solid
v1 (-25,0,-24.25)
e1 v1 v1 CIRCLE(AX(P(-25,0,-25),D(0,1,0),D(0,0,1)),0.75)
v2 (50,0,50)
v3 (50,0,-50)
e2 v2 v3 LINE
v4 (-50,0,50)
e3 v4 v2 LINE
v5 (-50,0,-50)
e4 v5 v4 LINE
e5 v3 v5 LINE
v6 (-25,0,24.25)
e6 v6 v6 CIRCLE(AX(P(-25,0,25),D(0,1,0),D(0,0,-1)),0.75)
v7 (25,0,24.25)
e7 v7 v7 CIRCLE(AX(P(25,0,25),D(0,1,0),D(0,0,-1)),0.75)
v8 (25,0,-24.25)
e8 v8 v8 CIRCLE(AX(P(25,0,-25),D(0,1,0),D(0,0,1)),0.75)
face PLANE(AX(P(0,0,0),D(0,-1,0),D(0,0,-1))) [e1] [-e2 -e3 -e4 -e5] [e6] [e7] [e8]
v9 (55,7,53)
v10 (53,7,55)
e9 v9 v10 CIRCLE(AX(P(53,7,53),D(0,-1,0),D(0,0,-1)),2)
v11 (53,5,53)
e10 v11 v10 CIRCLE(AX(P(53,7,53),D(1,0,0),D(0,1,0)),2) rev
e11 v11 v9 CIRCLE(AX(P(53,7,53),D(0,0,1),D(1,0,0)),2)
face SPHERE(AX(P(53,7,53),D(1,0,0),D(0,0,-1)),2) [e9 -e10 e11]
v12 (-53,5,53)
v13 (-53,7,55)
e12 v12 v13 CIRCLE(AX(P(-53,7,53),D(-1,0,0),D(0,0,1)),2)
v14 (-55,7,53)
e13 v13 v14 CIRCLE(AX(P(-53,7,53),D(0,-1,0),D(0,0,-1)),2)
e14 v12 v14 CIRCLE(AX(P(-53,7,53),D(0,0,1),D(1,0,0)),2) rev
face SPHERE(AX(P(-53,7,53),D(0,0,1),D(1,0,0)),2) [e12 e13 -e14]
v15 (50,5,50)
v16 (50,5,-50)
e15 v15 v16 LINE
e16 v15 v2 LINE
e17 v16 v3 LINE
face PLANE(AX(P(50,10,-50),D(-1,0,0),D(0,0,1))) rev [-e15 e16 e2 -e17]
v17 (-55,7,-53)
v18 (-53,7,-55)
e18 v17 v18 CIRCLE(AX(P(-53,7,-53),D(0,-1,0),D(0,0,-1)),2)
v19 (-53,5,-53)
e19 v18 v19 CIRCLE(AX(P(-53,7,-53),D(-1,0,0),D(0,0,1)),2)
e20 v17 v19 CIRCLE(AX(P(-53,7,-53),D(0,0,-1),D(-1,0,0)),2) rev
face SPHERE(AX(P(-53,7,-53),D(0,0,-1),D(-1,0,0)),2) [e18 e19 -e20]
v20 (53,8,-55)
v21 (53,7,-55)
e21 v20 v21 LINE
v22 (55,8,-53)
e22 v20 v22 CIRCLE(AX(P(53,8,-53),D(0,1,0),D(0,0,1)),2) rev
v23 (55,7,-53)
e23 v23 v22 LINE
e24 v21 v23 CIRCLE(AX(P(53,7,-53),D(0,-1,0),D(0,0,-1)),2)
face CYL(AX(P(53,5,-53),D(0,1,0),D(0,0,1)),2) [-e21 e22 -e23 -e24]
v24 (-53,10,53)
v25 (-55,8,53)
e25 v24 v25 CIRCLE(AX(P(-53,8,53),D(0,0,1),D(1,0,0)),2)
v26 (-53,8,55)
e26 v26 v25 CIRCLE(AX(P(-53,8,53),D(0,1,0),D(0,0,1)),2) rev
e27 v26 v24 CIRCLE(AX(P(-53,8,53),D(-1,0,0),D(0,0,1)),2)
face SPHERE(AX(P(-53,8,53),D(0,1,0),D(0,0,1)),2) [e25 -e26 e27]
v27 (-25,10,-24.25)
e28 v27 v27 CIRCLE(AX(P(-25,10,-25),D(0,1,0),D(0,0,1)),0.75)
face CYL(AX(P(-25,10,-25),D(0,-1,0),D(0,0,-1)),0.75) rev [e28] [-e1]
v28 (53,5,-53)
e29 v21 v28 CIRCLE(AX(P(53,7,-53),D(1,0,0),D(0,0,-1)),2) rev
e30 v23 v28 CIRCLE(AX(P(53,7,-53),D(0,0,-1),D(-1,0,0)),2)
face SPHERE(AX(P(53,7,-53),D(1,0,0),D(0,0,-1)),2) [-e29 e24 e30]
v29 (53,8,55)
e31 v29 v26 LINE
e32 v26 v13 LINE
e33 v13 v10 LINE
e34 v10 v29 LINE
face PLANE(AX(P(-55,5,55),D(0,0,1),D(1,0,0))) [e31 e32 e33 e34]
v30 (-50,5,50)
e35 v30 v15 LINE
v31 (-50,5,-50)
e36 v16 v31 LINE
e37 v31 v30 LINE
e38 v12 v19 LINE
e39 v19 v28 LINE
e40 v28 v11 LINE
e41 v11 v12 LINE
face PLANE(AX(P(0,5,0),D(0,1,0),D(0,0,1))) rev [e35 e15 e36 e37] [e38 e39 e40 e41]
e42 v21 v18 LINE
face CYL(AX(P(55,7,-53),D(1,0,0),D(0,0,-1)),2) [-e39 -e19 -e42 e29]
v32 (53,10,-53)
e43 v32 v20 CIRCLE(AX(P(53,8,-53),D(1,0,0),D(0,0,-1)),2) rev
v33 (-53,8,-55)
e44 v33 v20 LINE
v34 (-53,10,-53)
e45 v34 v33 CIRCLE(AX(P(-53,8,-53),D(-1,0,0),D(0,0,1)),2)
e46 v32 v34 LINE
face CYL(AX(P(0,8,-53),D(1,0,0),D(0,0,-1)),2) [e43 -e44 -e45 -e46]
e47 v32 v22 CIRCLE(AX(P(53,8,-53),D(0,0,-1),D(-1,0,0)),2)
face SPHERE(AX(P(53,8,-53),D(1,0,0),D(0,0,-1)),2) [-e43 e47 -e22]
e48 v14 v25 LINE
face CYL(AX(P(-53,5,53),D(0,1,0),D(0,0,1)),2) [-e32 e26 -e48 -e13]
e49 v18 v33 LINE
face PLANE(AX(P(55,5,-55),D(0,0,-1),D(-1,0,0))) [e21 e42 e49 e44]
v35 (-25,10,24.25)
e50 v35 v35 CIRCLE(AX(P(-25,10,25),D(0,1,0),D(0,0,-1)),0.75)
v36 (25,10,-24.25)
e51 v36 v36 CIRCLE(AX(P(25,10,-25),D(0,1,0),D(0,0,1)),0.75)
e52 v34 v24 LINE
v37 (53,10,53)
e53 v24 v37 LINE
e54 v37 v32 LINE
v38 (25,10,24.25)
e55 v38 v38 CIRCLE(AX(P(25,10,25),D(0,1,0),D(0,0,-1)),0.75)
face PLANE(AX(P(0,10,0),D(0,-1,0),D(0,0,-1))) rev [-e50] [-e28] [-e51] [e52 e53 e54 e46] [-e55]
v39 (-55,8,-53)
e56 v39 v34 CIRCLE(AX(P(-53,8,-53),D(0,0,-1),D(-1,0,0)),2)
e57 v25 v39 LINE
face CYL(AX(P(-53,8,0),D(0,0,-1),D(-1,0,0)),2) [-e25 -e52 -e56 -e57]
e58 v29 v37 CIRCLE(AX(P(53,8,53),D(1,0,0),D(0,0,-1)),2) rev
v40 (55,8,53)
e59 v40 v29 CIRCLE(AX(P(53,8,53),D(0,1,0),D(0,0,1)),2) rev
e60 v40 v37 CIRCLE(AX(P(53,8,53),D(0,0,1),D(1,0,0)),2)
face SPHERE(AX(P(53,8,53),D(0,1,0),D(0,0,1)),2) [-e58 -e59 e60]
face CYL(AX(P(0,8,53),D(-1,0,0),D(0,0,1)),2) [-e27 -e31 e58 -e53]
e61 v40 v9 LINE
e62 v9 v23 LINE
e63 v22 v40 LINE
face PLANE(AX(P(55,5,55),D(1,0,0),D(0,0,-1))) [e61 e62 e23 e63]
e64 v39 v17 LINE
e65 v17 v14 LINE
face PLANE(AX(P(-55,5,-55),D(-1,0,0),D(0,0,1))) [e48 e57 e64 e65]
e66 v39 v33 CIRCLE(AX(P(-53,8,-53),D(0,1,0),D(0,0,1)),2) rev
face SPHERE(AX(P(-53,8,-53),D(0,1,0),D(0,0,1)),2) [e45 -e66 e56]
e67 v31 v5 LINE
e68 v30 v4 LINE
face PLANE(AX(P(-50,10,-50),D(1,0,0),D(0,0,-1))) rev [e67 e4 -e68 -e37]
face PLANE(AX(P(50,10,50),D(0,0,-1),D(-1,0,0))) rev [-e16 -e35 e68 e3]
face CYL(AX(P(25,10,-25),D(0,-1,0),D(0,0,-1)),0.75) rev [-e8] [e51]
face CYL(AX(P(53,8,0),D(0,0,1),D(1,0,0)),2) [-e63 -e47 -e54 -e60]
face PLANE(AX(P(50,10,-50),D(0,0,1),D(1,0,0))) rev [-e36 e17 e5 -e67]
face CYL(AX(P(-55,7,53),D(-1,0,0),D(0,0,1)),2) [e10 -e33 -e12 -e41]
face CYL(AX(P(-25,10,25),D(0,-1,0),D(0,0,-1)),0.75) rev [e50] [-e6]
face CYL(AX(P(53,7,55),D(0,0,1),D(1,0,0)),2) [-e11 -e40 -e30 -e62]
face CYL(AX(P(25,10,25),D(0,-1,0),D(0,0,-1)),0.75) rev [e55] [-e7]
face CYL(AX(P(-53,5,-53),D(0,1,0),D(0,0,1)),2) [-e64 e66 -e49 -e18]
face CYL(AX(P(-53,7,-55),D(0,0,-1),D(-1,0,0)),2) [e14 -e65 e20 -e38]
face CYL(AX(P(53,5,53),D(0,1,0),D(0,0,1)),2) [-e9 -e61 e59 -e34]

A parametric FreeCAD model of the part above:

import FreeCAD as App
import Part
import Sketcher
from FreeCAD import Vector
Q = App.Units.Quantity


def edges_at(feature, points):
    """Names of the edges that pass closest to the given points."""
    edges = feature.Shape.Edges
    near = lambda p: min(range(len(edges)), key=lambda i: edges[i].distToShape(Part.Vertex(*p))[0])
    return sorted({f"Edge{near(p) + 1}" for p in points})


def add_polygon(sketch, points):
    """Adds a closed chain of lines whose ends are joined by coincident constraints."""
    first, n = sketch.GeometryCount, len(points)
    for a, b in zip(points, points[1:] + points[:1]):
        sketch.addGeometry(Part.LineSegment(App.Vector(*a, 0), App.Vector(*b, 0)), False)
    for i in range(n):
        sketch.addConstraint(Sketcher.Constraint("Coincident", first + i, 2, first + (i + 1) % n, 1))

doc = App.newDocument("Part")
body = doc.addObject("PartDesign::Body", "Body")

sketch1 = body.newObject("Sketcher::SketchObject", "Sketch")
sketch1.AttachmentSupport = (doc.getObject("XZ_Plane"), [""])
sketch1.MapMode = "FlatFace"
add_polygon(sketch1, [(-50, -50), (-50, 50), (50, 50), (50, -50)])
sketch1.addGeometry(Part.Circle(Vector(-25, 25, 0), Vector(0, 0, 1), 0.75), False)
sketch1.addGeometry(Part.Circle(Vector(25, 25, 0), Vector(0, 0, 1), 0.75), False)
sketch1.addGeometry(Part.Circle(Vector(-25, -25, 0), Vector(0, 0, 1), 0.75), False)
sketch1.addGeometry(Part.Circle(Vector(25, -25, 0), Vector(0, 0, 1), 0.75), False)
sketch1.addConstraint(Sketcher.Constraint("Vertical", 0))
sketch1.addConstraint(Sketcher.Constraint("Horizontal", 1))
sketch1.addConstraint(Sketcher.Constraint("Vertical", 2))
sketch1.addConstraint(Sketcher.Constraint("Horizontal", 3))
sketch1.addConstraint(Sketcher.Constraint("Equal", 4, 5))
sketch1.addConstraint(Sketcher.Constraint("Equal", 5, 6))
sketch1.addConstraint(Sketcher.Constraint("Equal", 6, 7))
sketch1.addConstraint(Sketcher.Constraint("Symmetric", 5, 3, 6, 3, -1, 1))
sketch1.addConstraint(Sketcher.Constraint("Symmetric", 4, 3, 7, 3, -1, 1))
sketch1.addConstraint(Sketcher.Constraint("Symmetric", 0, 2, 2, 2, -1, 1))
sketch1.addConstraint(Sketcher.Constraint("Symmetric", 4, 3, 5, 3, -2))
sketch1.addConstraint(Sketcher.Constraint("Equal", 3, 0))
sketch1.addConstraint(Sketcher.Constraint("Diameter", 4, Q("1.5 mm")))
sketch1.addConstraint(Sketcher.Constraint("DistanceX", 1, 1, 1, 2, Q("100 mm")))
sketch1.addConstraint(Sketcher.Constraint("DistanceX", 4, 3, -1, 1, Q("25 mm")))
sketch1.addConstraint(Sketcher.Constraint("DistanceY", -1, 1, 4, 3, Q("25 mm")))
pad1 = body.newObject("PartDesign::Pad", "Pad")
pad1.Profile = sketch1
pad1.Length = 10
pad1.Reversed = True

sketch2 = body.newObject("Sketcher::SketchObject", "Sketch001")
sketch2.AttachmentSupport = (doc.getObject("XZ_Plane"), [""])
sketch2.MapMode = "FlatFace"
sketch2.AttachmentOffset = App.Placement(Vector(0, 0, -10), App.Rotation())
add_polygon(sketch2, [(-55, -55), (-55, 55), (55, 55), (55, -55)])
add_polygon(sketch2, [(50, 50), (-50, 50), (-50, -50), (50, -50)])
sketch2.addConstraint(Sketcher.Constraint("Vertical", 0))
sketch2.addConstraint(Sketcher.Constraint("Horizontal", 1))
sketch2.addConstraint(Sketcher.Constraint("Vertical", 2))
sketch2.addConstraint(Sketcher.Constraint("Horizontal", 3))
sketch2.addConstraint(Sketcher.Constraint("Horizontal", 4))
sketch2.addConstraint(Sketcher.Constraint("Vertical", 5))
sketch2.addConstraint(Sketcher.Constraint("Horizontal", 6))
sketch2.addConstraint(Sketcher.Constraint("Vertical", 7))
sketch2.addConstraint(Sketcher.Constraint("Symmetric", 0, 2, 2, 2, -1, 1))
sketch2.addConstraint(Sketcher.Constraint("Symmetric", 4, 2, 6, 2, -1, 1))
sketch2.addConstraint(Sketcher.Constraint("Equal", 3, 0))
sketch2.addConstraint(Sketcher.Constraint("Equal", 6, 5))
sketch2.addConstraint(Sketcher.Constraint("DistanceX", 1, 1, 1, 2, Q("110 mm")))
sketch2.addConstraint(Sketcher.Constraint("DistanceX", 4, 2, 4, 1, Q("100 mm")))
pad2 = body.newObject("PartDesign::Pad", "Pad001")
pad2.Profile = sketch2
pad2.Length = 5
doc.recompute()

fillet = body.newObject("PartDesign::Fillet", "Fillet")
fillet.Base = (pad2, edges_at(pad2, [
    (0, 5, -55),
    (-55, 7.5, -55),
    (55, 5, 0),
    (55, 7.5, -55),
    (0, 5, 55),
    (55, 7.5, 55),
    (-55, 5, 0),
    (-55, 7.5, 55),
    (0, 10, -55),
    (-55, 10, 0),
    (0, 10, 55),
    (55, 10, 0),
]))
fillet.Radius = 2

doc.recompute()
